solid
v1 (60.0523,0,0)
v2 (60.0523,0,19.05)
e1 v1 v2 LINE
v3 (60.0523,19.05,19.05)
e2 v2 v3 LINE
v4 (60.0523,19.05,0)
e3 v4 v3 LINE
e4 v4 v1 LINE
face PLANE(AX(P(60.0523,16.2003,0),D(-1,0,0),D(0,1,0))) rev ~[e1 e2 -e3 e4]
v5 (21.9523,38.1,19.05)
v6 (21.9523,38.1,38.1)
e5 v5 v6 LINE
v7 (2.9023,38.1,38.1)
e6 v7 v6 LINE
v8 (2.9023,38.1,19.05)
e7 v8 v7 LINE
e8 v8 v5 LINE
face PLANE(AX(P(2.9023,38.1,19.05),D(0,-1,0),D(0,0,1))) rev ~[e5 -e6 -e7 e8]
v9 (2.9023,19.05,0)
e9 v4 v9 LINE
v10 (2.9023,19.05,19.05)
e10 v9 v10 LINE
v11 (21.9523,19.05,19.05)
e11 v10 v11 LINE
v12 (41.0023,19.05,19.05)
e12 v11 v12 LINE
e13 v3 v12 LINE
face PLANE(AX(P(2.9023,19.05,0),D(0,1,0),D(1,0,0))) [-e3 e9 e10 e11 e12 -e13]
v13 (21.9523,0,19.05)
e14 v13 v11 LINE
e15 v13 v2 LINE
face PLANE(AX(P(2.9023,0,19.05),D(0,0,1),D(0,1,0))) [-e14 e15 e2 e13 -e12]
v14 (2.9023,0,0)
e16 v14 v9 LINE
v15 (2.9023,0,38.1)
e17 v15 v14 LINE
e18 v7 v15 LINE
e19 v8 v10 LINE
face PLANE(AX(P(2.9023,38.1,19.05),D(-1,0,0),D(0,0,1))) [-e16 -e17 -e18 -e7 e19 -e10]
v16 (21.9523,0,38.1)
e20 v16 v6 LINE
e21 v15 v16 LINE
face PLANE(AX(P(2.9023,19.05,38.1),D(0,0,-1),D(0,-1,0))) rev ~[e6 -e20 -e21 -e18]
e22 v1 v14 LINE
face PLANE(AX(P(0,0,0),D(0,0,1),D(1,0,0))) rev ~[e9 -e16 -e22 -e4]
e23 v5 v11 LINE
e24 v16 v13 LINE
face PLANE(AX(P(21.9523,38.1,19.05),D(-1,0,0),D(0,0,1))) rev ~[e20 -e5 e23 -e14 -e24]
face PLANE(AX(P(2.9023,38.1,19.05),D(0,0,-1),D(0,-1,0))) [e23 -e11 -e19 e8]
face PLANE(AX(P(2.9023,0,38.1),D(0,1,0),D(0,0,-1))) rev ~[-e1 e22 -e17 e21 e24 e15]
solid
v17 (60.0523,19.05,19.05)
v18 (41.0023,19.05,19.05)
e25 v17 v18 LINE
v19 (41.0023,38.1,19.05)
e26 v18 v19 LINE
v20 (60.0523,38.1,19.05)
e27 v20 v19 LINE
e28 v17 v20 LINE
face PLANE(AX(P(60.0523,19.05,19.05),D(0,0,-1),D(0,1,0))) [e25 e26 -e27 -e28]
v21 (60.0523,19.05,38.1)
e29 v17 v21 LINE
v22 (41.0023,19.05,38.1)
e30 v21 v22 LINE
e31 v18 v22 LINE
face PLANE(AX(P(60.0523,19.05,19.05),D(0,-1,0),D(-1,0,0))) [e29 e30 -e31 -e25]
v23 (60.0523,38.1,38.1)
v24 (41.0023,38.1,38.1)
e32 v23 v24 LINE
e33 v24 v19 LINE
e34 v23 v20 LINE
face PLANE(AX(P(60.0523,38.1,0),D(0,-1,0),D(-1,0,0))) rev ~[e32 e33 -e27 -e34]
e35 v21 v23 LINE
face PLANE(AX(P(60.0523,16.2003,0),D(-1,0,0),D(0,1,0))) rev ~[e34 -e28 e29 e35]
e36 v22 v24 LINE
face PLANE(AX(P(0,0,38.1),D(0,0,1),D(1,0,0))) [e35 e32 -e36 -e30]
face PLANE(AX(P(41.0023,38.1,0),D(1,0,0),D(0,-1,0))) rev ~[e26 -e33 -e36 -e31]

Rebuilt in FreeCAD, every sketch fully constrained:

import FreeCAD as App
import Part
import Sketcher
from FreeCAD import Vector
Q = App.Units.Quantity

doc = App.newDocument("Part")
body = doc.addObject("PartDesign::Body", "Body")
body.AllowCompound = True

# Sketch on XY plane
sketch1 = body.newObject("Sketcher::SketchObject", "Sketch")
sketch1.AttachmentSupport = (doc.getObject("XY_Plane"), [""])
sketch1.MapMode = "FlatFace"
sketch1.addGeometry([
    Part.LineSegment(Vector(41.0023, 19.05, 0), Vector(2.9023, 19.05, 0)),  # 0
    Part.LineSegment(Vector(2.9023, 19.05, 0), Vector(2.9023, 0, 0)),  # 1
    Part.LineSegment(Vector(2.9023, 0, 0), Vector(60.0523, 0, 0)),  # 2
    Part.LineSegment(Vector(60.0523, 0, 0), Vector(60.0523, 38.1, 0)),  # 3
    Part.LineSegment(Vector(60.0523, 38.1, 0), Vector(41.0023, 38.1, 0)),  # 4
    Part.LineSegment(Vector(41.0023, 38.1, 0), Vector(41.0023, 19.05, 0)),  # 5
], False)
sketch1.addConstraint([
    Sketcher.Constraint("Coincident", 0, 2, 1, 1),
    Sketcher.Constraint("Coincident", 1, 2, 2, 1),
    Sketcher.Constraint("Coincident", 2, 2, 3, 1),
    Sketcher.Constraint("Coincident", 3, 2, 4, 1),
    Sketcher.Constraint("Coincident", 4, 2, 5, 1),
    Sketcher.Constraint("Coincident", 5, 2, 0, 1),
    Sketcher.Constraint("Horizontal", 0),
    Sketcher.Constraint("Vertical", 1),
    Sketcher.Constraint("Horizontal", 2),
    Sketcher.Constraint("Vertical", 3),
    Sketcher.Constraint("Horizontal", 4),
    Sketcher.Constraint("Vertical", 5),
    Sketcher.Constraint("PointOnObject", 1, 2, -1),
    Sketcher.Constraint("Equal", 4, 1),
    Sketcher.Constraint("Equal", 0, 3),
    Sketcher.Constraint("Equal", 1, 5),
    Sketcher.Constraint("DistanceX", 0, 2, 0, 1, Q("1.5 in")),
    Sketcher.Constraint("DistanceX", -1, 1, 0, 2, 2.9023),
])
pad1 = body.newObject("PartDesign::Pad", "Pad")
pad1.Profile = sketch1
pad1.Length = Q("0.75 in")

# Sketch on XY plane
sketch2 = body.newObject("Sketcher::SketchObject", "Sketch001")
sketch2.AttachmentSupport = (doc.getObject("XY_Plane"), [""])
sketch2.MapMode = "FlatFace"
sketch2.AttachmentOffset = App.Placement(Vector(0, 0, 0.75 * 25.4), App.Rotation())
sketch2.addGeometry([
    Part.LineSegment(Vector(60.0523, 19.05, 0), Vector(60.0523, 38.1, 0)),
    Part.LineSegment(Vector(60.0523, 38.1, 0), Vector(41.0023, 38.1, 0)),
    Part.LineSegment(Vector(41.0023, 38.1, 0), Vector(41.0023, 19.05, 0)),
    Part.LineSegment(Vector(41.0023, 19.05, 0), Vector(60.0523, 19.05, 0)),
], False)
sketch2.addConstraint([
    Sketcher.Constraint("Coincident", 0, 2, 1, 1),
    Sketcher.Constraint("Coincident", 1, 2, 2, 1),
    Sketcher.Constraint("Coincident", 2, 2, 3, 1),
    Sketcher.Constraint("Coincident", 3, 2, 0, 1),
    Sketcher.Constraint("Vertical", 0),
    Sketcher.Constraint("Horizontal", 1),
    Sketcher.Constraint("Vertical", 2),
    Sketcher.Constraint("Horizontal", 3),
    Sketcher.Constraint("Equal", 3, 0),
    Sketcher.Constraint("DistanceX", 1, 2, 1, 1, Q("0.75 in")),
    Sketcher.Constraint("DistanceY", -1, 1, 0, 2, Q("1.5 in")),
    Sketcher.Constraint("DistanceX", -1, 1, 0, 2, 60.0523),
])
pad2 = body.newObject("PartDesign::Pad", "Pad001")
pad2.Profile = sketch2
pad2.Length = Q("0.75 in")

# Sketch on YZ plane
sketch3 = body.newObject("Sketcher::SketchObject", "Sketch002")
sketch3.AttachmentSupport = (doc.getObject("YZ_Plane"), [""])
sketch3.MapMode = "FlatFace"
sketch3.AttachmentOffset = App.Placement(Vector(0, 0, 2.9023), App.Rotation())
sketch3.addGeometry([
    Part.LineSegment(Vector(38.1, 19.05, 0), Vector(0, 19.05, 0)),
    Part.LineSegment(Vector(0, 19.05, 0), Vector(0, 38.1, 0)),
    Part.LineSegment(Vector(0, 38.1, 0), Vector(38.1, 38.1, 0)),
    Part.LineSegment(Vector(38.1, 38.1, 0), Vector(38.1, 19.05, 0)),
], False)
sketch3.addConstraint([
    Sketcher.Constraint("Coincident", 0, 2, 1, 1),
    Sketcher.Constraint("Coincident", 1, 2, 2, 1),
    Sketcher.Constraint("Coincident", 2, 2, 3, 1),
    Sketcher.Constraint("Coincident", 3, 2, 0, 1),
    Sketcher.Constraint("Horizontal", 0),
    Sketcher.Constraint("Vertical", 1),
    Sketcher.Constraint("Horizontal", 2),
    Sketcher.Constraint("Vertical", 3),
    Sketcher.Constraint("PointOnObject", 0, 2, -2),
    Sketcher.Constraint("DistanceX", 0, 2, 0, 1, Q("1.5 in")),
    Sketcher.Constraint("DistanceY", 1, 1, 1, 2, Q("0.75 in")),
    Sketcher.Constraint("DistanceY", -1, 1, 1, 2, Q("1.5 in")),
])
pad3 = body.newObject("PartDesign::Pad", "Pad002")
pad3.Profile = sketch3
pad3.Length = Q("0.75 in")

# Sketch on YZ plane
sketch4 = body.newObject("Sketcher::SketchObject", "Sketch003")
sketch4.AttachmentSupport = (doc.getObject("YZ_Plane"), [""])
sketch4.MapMode = "FlatFace"
sketch4.AttachmentOffset = App.Placement(Vector(0, 0, 2.9023), App.Rotation())
sketch4.addGeometry([
    Part.LineSegment(Vector(19.05, 19.05, 0), Vector(0, 19.05, 0)),
    Part.LineSegment(Vector(0, 19.05, 0), Vector(0, 38.1, 0)),
    Part.LineSegment(Vector(0, 38.1, 0), Vector(19.05, 38.1, 0)),
    Part.LineSegment(Vector(19.05, 38.1, 0), Vector(19.05, 19.05, 0)),
], False)
sketch4.addConstraint([
    Sketcher.Constraint("Coincident", 0, 2, 1, 1),
    Sketcher.Constraint("Coincident", 1, 2, 2, 1),
    Sketcher.Constraint("Coincident", 2, 2, 3, 1),
    Sketcher.Constraint("Coincident", 3, 2, 0, 1),
    Sketcher.Constraint("Horizontal", 0),
    Sketcher.Constraint("Vertical", 1),
    Sketcher.Constraint("Horizontal", 2),
    Sketcher.Constraint("Vertical", 3),
    Sketcher.Constraint("PointOnObject", 0, 2, -2),
    Sketcher.Constraint("Equal", 2, 1),
    Sketcher.Constraint("DistanceX", 0, 2, 0, 1, Q("0.75 in")),
    Sketcher.Constraint("DistanceY", -1, 1, 1, 2, Q("1.5 in")),
])
pocket1 = body.newObject("PartDesign::Pocket", "Pocket")
pocket1.Profile = sketch4
pocket1.Length = Q("0.75 in")
pocket1.Reversed = True

# Sketch on YZ plane
sketch5 = body.newObject("Sketcher::SketchObject", "Sketch004")
sketch5.AttachmentSupport = (doc.getObject("YZ_Plane"), [""])
sketch5.MapMode = "FlatFace"
sketch5.AttachmentOffset = App.Placement(Vector(0, 0, 60.0523), App.Rotation())
sketch5.addGeometry([
    Part.LineSegment(Vector(38.1, 19.05, 0), Vector(19.05, 19.05, 0)),
    Part.LineSegment(Vector(19.05, 19.05, 0), Vector(19.05, 0, 0)),
    Part.LineSegment(Vector(19.05, 0, 0), Vector(38.1, 0, 0)),
    Part.LineSegment(Vector(38.1, 0, 0), Vector(38.1, 19.05, 0)),
], False)
sketch5.addConstraint([
    Sketcher.Constraint("Coincident", 0, 2, 1, 1),
    Sketcher.Constraint("Coincident", 1, 2, 2, 1),
    Sketcher.Constraint("Coincident", 2, 2, 3, 1),
    Sketcher.Constraint("Coincident", 3, 2, 0, 1),
    Sketcher.Constraint("Horizontal", 0),
    Sketcher.Constraint("Vertical", 1),
    Sketcher.Constraint("Horizontal", 2),
    Sketcher.Constraint("Vertical", 3),
    Sketcher.Constraint("PointOnObject", 1, 2, -1),
    Sketcher.Constraint("Equal", 2, 1),
    Sketcher.Constraint("DistanceX", 0, 2, 0, 1, Q("0.75 in")),
    Sketcher.Constraint("DistanceX", -1, 1, 2, 2, Q("1.5 in")),
])
pocket2 = body.newObject("PartDesign::Pocket", "Pocket001")
pocket2.Profile = sketch5
pocket2.Length = Q("0.8125 in")

# Sketch on YZ plane
sketch6 = body.newObject("Sketcher::SketchObject", "Sketch005")
sketch6.AttachmentSupport = (doc.getObject("YZ_Plane"), [""])
sketch6.MapMode = "FlatFace"
sketch6.AttachmentOffset = App.Placement(Vector(0, 0, 2.9023), App.Rotation())
sketch6.addGeometry([
    Part.LineSegment(Vector(19.05, 38.1, 0), Vector(19.05, 19.05, 0)),
    Part.LineSegment(Vector(19.05, 19.05, 0), Vector(0, 19.05, 0)),
    Part.LineSegment(Vector(0, 19.05, 0), Vector(0, 38.1, 0)),
    Part.LineSegment(Vector(0, 38.1, 0), Vector(19.05, 38.1, 0)),
], False)
sketch6.addConstraint([
    Sketcher.Constraint("Coincident", 0, 2, 1, 1),
    Sketcher.Constraint("Coincident", 1, 2, 2, 1),
    Sketcher.Constraint("Coincident", 2, 2, 3, 1),
    Sketcher.Constraint("Coincident", 3, 2, 0, 1),
    Sketcher.Constraint("Vertical", 0),
    Sketcher.Constraint("Horizontal", 1),
    Sketcher.Constraint("Vertical", 2),
    Sketcher.Constraint("Horizontal", 3),
    Sketcher.Constraint("PointOnObject", 1, 2, -2),
    Sketcher.Constraint("Equal", 3, 0),
    Sketcher.Constraint("DistanceX", 1, 2, 1, 1, Q("0.75 in")),
    Sketcher.Constraint("DistanceY", -1, 1, 0, 2, Q("0.75 in")),
])
pad4 = body.newObject("PartDesign::Pad", "Pad003")
pad4.Profile = sketch6
pad4.Length = Q("0.75 in")

doc.recompute()
